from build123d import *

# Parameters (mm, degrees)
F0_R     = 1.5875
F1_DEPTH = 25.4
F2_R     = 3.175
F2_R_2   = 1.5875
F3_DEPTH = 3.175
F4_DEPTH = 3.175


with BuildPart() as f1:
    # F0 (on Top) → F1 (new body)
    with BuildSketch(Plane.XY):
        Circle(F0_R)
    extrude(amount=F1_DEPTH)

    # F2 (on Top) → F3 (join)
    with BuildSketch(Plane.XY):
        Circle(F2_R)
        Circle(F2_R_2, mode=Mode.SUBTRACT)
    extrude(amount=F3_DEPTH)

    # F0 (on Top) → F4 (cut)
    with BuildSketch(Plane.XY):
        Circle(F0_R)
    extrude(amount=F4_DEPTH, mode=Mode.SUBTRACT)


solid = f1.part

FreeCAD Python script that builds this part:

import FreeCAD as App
import Part
import Sketcher
from FreeCAD import Vector
Q = App.Units.Quantity

doc = App.newDocument("Part")
body = doc.addObject("PartDesign::Body", "Body")
body.AllowCompound = True

sketch1 = body.newObject("Sketcher::SketchObject", "Sketch")
sketch1.AttachmentSupport = (doc.getObject("XY_Plane"), [""])
sketch1.MapMode = "FlatFace"
sketch1.addGeometry(Part.Circle(Vector(0, 0, 0), Vector(0, 0, 1), 1.6), False)
sketch1.addConstraint([
    Sketcher.Constraint("Coincident", 0, 3, -1, 1),
    Sketcher.Constraint("Diameter", 0, Q("0.125 in")),
])
pad1 = body.newObject("PartDesign::Pad", "Pad")
pad1.Profile = sketch1
pad1.Length = Q("1 in")

sketch2 = body.newObject("Sketcher::SketchObject", "Sketch001")
sketch2.AttachmentSupport = (doc.getObject("XY_Plane"), [""])
sketch2.MapMode = "FlatFace"
sketch2.addGeometry([
    Part.Circle(Vector(0, 0, 0), Vector(0, 0, 1), 3.2),
    Part.Circle(Vector(0, 0, 0), Vector(0, 0, 1), 1.6),
], False)
sketch2.addConstraint([
    Sketcher.Constraint("Coincident", 0, 3, -1, 1),
    Sketcher.Constraint("Coincident", 1, 3, -1, 1),
    Sketcher.Constraint("Diameter", 0, Q("0.25 in")),
    Sketcher.Constraint("Diameter", 1, Q("0.125 in")),
])
pad2 = body.newObject("PartDesign::Pad", "Pad001")
pad2.Profile = sketch2
pad2.Length = Q("0.125 in")

sketch3 = body.newObject("Sketcher::SketchObject", "Sketch002")
sketch3.AttachmentSupport = (doc.getObject("XY_Plane"), [""])
sketch3.MapMode = "FlatFace"
sketch3.addGeometry(Part.Circle(Vector(0, 0, 0), Vector(0, 0, 1), 1.6), False)
sketch3.addConstraint([
    Sketcher.Constraint("Coincident", 0, 3, -1, 1),
    Sketcher.Constraint("Diameter", 0, Q("0.125 in")),
])
pocket1 = body.newObject("PartDesign::Pocket", "Pocket")
pocket1.Profile = sketch3
pocket1.Length = Q("0.125 in")
pocket1.Reversed = True

doc.recompute()
